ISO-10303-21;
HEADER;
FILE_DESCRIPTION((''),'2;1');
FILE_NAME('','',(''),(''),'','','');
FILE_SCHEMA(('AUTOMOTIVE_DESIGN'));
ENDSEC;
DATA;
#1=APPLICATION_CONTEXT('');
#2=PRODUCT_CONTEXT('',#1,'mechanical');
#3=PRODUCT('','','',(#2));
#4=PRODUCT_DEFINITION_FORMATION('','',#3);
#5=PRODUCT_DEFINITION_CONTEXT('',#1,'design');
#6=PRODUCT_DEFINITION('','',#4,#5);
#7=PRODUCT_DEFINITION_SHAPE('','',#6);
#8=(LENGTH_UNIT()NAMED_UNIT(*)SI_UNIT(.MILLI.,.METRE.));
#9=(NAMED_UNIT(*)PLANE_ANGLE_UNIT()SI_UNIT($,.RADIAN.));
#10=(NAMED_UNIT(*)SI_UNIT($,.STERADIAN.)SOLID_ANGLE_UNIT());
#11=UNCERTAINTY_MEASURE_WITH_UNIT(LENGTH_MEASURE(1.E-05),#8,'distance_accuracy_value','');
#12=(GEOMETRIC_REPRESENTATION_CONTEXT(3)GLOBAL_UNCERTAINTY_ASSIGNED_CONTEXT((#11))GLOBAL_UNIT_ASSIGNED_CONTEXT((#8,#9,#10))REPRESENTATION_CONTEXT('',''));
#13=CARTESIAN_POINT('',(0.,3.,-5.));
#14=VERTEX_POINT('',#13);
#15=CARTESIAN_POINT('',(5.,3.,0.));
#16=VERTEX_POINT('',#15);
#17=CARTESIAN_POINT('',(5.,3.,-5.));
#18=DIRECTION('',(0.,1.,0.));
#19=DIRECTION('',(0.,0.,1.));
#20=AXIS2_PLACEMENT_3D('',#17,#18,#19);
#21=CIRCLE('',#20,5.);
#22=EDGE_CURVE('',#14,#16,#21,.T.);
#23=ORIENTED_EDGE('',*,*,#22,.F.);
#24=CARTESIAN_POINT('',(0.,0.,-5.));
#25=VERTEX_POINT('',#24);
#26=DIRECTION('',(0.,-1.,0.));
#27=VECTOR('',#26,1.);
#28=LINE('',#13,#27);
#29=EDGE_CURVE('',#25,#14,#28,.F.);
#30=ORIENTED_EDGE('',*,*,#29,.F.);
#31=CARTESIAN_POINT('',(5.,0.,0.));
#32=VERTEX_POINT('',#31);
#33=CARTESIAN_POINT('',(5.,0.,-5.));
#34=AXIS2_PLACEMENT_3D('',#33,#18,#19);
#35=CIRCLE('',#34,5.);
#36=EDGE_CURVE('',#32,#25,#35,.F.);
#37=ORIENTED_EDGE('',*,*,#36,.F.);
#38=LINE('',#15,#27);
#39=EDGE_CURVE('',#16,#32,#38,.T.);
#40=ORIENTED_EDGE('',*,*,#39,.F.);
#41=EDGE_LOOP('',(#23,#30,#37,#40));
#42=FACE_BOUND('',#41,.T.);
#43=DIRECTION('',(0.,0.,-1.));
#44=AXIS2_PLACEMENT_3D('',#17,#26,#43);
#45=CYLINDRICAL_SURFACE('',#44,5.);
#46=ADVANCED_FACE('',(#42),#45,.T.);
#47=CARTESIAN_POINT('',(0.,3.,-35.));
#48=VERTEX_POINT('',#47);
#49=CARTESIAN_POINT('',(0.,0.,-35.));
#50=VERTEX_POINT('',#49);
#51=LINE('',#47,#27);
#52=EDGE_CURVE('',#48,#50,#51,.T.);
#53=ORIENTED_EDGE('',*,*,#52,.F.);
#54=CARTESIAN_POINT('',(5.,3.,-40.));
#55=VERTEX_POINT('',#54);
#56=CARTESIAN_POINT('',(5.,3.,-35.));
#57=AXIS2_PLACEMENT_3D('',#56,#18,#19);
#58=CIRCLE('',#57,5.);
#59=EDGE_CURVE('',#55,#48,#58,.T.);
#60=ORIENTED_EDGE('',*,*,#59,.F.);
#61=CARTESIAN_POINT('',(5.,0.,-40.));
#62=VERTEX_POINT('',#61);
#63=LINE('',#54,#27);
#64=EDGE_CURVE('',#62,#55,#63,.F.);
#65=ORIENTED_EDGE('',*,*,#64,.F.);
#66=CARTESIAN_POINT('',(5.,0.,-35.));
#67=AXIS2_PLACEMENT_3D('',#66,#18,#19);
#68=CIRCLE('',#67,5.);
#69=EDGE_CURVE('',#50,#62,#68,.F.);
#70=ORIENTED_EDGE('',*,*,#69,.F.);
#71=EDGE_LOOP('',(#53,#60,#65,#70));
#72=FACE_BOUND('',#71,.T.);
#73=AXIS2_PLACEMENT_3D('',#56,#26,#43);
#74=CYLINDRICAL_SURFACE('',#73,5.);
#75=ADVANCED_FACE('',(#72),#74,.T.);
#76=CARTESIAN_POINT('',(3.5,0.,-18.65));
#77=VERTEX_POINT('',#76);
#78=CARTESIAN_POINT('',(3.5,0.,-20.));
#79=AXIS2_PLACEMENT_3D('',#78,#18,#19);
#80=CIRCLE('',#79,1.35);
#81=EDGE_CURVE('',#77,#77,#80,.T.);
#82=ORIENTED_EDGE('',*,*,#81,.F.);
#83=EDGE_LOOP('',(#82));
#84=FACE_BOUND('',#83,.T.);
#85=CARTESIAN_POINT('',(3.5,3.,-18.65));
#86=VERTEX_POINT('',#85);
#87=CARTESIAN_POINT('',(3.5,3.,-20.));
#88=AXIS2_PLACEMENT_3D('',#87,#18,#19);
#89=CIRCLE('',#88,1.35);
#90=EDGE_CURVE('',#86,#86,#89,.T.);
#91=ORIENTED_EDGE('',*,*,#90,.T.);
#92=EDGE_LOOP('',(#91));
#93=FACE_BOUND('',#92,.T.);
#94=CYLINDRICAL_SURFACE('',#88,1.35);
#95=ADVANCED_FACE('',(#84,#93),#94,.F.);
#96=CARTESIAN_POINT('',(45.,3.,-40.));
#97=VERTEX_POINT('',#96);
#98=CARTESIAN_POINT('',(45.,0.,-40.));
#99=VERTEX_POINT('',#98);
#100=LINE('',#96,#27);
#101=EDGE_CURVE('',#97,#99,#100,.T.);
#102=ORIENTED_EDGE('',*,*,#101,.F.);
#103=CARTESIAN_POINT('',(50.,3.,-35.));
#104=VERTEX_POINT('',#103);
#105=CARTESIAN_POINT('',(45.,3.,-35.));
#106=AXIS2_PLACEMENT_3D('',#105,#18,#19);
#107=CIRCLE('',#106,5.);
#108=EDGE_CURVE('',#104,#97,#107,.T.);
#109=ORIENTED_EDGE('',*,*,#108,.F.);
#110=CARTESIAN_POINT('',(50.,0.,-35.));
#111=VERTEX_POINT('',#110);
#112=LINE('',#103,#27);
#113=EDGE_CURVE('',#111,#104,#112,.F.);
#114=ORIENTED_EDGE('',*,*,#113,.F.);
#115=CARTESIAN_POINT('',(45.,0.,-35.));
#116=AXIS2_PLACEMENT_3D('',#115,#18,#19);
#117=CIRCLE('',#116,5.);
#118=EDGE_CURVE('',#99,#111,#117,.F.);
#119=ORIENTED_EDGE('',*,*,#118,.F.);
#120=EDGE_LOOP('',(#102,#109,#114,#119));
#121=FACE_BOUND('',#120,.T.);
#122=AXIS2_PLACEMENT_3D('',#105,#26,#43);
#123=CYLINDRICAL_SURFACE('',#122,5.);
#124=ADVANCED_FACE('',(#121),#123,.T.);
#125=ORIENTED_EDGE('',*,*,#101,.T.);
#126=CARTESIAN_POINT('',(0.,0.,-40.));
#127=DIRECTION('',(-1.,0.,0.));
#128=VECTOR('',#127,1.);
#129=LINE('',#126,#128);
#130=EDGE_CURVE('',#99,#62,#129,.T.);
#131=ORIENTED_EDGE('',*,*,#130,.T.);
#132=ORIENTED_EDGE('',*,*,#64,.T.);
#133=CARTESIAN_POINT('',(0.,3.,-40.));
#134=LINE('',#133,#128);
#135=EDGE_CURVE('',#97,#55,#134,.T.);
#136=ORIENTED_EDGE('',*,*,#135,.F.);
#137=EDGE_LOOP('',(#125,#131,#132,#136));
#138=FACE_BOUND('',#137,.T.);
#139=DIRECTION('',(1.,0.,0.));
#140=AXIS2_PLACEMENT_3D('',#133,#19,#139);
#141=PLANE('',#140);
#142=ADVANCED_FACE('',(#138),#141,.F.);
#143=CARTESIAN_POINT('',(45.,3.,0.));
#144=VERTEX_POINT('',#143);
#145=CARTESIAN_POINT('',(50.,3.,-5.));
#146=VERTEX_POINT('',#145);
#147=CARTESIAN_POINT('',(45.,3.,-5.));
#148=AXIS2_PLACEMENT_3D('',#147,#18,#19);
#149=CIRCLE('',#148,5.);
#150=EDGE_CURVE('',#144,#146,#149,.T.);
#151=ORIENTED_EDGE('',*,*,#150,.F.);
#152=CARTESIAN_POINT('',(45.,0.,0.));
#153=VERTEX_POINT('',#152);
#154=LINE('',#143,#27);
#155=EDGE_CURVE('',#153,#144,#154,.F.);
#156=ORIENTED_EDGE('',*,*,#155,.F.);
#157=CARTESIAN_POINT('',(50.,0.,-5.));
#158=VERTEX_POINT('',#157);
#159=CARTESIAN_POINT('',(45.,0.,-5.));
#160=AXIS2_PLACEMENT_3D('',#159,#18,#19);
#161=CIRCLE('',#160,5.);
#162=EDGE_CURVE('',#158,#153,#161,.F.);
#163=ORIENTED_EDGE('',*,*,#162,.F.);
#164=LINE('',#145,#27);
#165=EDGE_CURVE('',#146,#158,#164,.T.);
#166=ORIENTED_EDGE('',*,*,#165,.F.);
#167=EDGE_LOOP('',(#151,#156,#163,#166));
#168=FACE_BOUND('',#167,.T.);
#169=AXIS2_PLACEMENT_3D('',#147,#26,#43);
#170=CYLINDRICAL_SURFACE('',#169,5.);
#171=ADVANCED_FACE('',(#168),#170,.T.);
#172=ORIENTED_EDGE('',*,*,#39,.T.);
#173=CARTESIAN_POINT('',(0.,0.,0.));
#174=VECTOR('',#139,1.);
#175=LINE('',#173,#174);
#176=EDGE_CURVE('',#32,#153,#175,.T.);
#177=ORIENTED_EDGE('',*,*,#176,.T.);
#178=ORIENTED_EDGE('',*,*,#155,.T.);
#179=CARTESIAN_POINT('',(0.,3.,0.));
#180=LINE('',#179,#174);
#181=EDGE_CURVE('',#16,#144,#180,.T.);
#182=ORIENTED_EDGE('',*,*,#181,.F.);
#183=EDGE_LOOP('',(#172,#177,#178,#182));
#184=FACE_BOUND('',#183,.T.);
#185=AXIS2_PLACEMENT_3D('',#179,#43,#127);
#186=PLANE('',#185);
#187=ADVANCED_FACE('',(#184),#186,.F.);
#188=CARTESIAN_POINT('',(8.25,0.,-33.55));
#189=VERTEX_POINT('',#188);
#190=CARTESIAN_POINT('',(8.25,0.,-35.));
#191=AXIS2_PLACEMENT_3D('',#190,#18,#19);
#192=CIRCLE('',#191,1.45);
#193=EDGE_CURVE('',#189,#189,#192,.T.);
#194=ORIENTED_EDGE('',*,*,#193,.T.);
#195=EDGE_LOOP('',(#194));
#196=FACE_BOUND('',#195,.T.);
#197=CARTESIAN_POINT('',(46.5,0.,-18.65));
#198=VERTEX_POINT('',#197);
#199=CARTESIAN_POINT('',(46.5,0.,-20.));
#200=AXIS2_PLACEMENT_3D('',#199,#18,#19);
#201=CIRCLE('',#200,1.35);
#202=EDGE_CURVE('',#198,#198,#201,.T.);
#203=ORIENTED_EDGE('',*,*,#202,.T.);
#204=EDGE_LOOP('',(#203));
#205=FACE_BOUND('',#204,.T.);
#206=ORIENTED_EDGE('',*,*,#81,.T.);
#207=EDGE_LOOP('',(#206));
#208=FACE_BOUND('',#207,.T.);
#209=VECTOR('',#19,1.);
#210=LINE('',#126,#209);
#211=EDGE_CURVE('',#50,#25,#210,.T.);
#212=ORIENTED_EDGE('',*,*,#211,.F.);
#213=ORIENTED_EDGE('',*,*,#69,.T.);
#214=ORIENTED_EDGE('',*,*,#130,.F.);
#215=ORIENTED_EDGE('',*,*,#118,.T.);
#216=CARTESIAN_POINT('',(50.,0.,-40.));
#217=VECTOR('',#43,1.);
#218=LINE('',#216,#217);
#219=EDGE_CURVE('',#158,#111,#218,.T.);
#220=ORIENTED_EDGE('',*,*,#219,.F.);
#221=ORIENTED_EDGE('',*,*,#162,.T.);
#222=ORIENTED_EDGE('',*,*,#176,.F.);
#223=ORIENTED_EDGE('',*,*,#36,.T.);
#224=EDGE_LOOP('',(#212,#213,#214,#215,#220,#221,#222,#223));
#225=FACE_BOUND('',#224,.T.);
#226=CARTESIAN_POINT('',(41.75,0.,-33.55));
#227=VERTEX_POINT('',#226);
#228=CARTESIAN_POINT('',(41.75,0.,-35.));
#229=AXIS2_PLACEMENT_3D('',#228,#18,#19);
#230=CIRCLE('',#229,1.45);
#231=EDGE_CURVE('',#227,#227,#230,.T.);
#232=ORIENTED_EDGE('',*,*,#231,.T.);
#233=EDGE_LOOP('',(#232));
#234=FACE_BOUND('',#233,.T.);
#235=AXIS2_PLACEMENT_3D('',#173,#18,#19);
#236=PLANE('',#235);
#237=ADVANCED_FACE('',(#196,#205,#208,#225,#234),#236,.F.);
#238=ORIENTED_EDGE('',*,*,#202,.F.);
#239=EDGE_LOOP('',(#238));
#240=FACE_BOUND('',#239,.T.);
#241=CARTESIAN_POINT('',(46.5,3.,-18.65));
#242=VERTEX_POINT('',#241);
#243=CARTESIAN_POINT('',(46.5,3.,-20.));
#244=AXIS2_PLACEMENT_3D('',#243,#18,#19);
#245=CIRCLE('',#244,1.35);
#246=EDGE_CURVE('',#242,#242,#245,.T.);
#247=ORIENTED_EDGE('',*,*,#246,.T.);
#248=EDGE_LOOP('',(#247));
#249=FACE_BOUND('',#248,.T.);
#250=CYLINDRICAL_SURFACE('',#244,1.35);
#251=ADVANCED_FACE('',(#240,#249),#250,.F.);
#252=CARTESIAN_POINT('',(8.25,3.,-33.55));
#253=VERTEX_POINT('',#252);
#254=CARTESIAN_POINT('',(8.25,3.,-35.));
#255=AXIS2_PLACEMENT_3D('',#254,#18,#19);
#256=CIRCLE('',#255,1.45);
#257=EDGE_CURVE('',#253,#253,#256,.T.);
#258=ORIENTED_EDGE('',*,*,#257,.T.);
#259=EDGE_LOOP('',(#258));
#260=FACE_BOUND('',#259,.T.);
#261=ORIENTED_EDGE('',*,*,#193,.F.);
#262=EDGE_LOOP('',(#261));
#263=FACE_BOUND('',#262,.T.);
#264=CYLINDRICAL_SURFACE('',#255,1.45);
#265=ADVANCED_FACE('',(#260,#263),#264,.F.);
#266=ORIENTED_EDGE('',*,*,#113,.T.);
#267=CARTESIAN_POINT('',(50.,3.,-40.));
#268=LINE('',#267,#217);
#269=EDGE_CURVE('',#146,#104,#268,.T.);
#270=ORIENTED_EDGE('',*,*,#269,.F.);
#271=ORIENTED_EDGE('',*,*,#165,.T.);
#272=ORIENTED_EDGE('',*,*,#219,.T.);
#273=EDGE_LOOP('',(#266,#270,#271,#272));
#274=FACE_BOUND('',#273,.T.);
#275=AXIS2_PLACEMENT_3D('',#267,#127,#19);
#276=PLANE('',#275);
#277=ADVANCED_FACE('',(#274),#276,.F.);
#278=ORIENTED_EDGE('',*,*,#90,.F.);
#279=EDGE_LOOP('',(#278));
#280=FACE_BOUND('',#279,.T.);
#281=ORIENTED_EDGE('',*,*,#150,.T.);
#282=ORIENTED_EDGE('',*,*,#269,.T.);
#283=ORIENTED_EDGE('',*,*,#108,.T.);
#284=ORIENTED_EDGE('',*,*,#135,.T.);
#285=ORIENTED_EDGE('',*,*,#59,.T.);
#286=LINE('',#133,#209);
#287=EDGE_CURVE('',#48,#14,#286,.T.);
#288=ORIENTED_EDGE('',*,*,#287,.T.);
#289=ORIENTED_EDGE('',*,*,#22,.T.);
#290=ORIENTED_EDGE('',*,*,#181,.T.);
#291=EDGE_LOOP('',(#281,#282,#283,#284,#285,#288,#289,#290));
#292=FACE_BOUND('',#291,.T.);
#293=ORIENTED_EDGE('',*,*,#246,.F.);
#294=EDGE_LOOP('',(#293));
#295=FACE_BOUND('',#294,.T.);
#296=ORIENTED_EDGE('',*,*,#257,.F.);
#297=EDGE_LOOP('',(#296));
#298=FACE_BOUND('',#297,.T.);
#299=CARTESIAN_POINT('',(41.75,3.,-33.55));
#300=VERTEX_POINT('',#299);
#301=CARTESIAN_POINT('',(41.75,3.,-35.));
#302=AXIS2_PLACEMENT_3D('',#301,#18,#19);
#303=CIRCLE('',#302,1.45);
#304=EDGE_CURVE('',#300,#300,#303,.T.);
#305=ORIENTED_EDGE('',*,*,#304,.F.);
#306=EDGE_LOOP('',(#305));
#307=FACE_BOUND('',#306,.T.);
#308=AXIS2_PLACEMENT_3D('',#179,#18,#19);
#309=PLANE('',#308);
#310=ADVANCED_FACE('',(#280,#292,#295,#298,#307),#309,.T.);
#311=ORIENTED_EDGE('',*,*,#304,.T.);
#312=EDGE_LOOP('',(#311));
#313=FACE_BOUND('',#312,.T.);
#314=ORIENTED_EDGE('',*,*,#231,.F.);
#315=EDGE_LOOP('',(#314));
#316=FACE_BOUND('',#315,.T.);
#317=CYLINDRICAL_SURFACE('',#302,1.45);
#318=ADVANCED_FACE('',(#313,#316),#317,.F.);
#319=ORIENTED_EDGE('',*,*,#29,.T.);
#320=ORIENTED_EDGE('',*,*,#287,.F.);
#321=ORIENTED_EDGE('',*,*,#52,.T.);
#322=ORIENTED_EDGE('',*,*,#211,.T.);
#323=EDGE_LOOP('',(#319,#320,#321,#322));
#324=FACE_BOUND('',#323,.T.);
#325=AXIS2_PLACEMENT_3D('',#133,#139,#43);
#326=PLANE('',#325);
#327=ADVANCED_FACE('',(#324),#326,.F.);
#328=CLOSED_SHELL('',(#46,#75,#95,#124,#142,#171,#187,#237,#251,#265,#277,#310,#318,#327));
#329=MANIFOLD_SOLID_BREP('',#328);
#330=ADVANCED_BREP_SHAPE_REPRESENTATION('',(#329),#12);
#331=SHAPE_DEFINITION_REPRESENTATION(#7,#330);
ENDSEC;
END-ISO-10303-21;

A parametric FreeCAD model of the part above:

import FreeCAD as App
import Part
import Sketcher
from FreeCAD import Vector


def edges_at(feature, points):
    """Names of the edges that pass closest to the given points."""
    edges = feature.Shape.Edges
    near = lambda p: min(range(len(edges)), key=lambda i: edges[i].distToShape(Part.Vertex(*p))[0])
    return sorted({f"Edge{near(p) + 1}" for p in points})

doc = App.newDocument("Part")
body = doc.addObject("PartDesign::Body", "Body")

# Sketch on XZ plane
sketch1 = body.newObject("Sketcher::SketchObject", "Sketch")
sketch1.AttachmentSupport = (doc.getObject("XZ_Plane"), [""])
sketch1.MapMode = "FlatFace"
sketch1.addGeometry([
    Part.LineSegment(Vector(0, -40, 0), Vector(0, 0, 0)),
    Part.LineSegment(Vector(0, 0, 0), Vector(50, 0, 0)),
    Part.LineSegment(Vector(50, 0, 0), Vector(50, -40, 0)),
    Part.LineSegment(Vector(50, -40, 0), Vector(0, -40, 0)),
], False)
sketch1.addConstraint([
    Sketcher.Constraint("Coincident", 0, 2, 1, 1),
    Sketcher.Constraint("Coincident", 1, 2, 2, 1),
    Sketcher.Constraint("Coincident", 2, 2, 3, 1),
    Sketcher.Constraint("Coincident", 3, 2, 0, 1),
    Sketcher.Constraint("Vertical", 0),
    Sketcher.Constraint("Horizontal", 1),
    Sketcher.Constraint("Vertical", 2),
    Sketcher.Constraint("Horizontal", 3),
    Sketcher.Constraint("Coincident", 0, 2, -1, 1),
    Sketcher.Constraint("DistanceX", 1, 1, 1, 2, 50.0),
    Sketcher.Constraint("DistanceY", 0, 1, 0, 2, 40.0),
])
pad1 = body.newObject("PartDesign::Pad", "Pad")
pad1.Profile = sketch1
pad1.Length = 3
pad1.Reversed = True

# Sketch on XZ plane
sketch2 = body.newObject("Sketcher::SketchObject", "Sketch001")
sketch2.AttachmentSupport = (doc.getObject("XZ_Plane"), [""])
sketch2.MapMode = "FlatFace"
sketch2.AttachmentOffset = App.Placement(Vector(0, 0, -3), App.Rotation())
sketch2.addGeometry([
    Part.Circle(Vector(8.2, -35, 0), Vector(0, 0, 1), 1.4),
    Part.Circle(Vector(41.8, -35, 0), Vector(0, 0, 1), 1.4),
], False)
sketch2.addConstraint([
    Sketcher.Constraint("Equal", 0, 1),
    Sketcher.Constraint("Horizontal", 0, 3, 1, 3),
    Sketcher.Constraint("Diameter", 0, 2.9),
    Sketcher.Constraint("DistanceY", 0, 3, -1, 1, 35.0),
    Sketcher.Constraint("DistanceX", 0, 3, 1, 3, 33.5),
    Sketcher.Constraint("DistanceX", -1, 1, 0, 3, 8.25),
])
doc.recompute()
hole = body.newObject("PartDesign::Hole", "Hole")
hole.Profile = sketch2
hole.ThreadType = "None"
hole.Diameter = 2.9
hole.DepthType = "Dimension"
hole.Depth = 15.24
hole.DrillPoint = "Angled"
hole.DrillPointAngle = 118
hole.Reversed = True

# Sketch on XZ plane
sketch3 = body.newObject("Sketcher::SketchObject", "Sketch002")
sketch3.AttachmentSupport = (doc.getObject("XZ_Plane"), [""])
sketch3.MapMode = "FlatFace"
sketch3.AttachmentOffset = App.Placement(Vector(0, 0, -3), App.Rotation())
sketch3.addGeometry([
    Part.Circle(Vector(3.5, -20, 0), Vector(0, 0, 1), 1.4),
    Part.Circle(Vector(46.5, -20, 0), Vector(0, 0, 1), 1.4),
], False)
sketch3.addConstraint([
    Sketcher.Constraint("Equal", 0, 1),
    Sketcher.Constraint("Horizontal", 0, 3, 1, 3),
    Sketcher.Constraint("Diameter", 0, 2.7),
    Sketcher.Constraint("DistanceY", 0, 3, -1, 1, 20.0),
    Sketcher.Constraint("DistanceX", 0, 3, 1, 3, 43.0),
    Sketcher.Constraint("DistanceX", -1, 1, 0, 3, 3.5),
])
doc.recompute()
hole2 = body.newObject("PartDesign::Hole", "Hole001")
hole2.Profile = sketch3
hole2.ThreadType = "None"
hole2.Diameter = 2.7
hole2.DepthType = "Dimension"
hole2.Depth = 15.24
hole2.DrillPoint = "Angled"
hole2.DrillPointAngle = 118
hole2.Reversed = True
doc.recompute()

fillet = body.newObject("PartDesign::Fillet", "Fillet")
fillet.Base = (hole2, edges_at(hole2, [
    (0, 1.5, -40),
    (50, 1.5, -40),
    (50, 1.5, 0),
    (0, 1.5, 0),
]))
fillet.Radius = 5

doc.recompute()
